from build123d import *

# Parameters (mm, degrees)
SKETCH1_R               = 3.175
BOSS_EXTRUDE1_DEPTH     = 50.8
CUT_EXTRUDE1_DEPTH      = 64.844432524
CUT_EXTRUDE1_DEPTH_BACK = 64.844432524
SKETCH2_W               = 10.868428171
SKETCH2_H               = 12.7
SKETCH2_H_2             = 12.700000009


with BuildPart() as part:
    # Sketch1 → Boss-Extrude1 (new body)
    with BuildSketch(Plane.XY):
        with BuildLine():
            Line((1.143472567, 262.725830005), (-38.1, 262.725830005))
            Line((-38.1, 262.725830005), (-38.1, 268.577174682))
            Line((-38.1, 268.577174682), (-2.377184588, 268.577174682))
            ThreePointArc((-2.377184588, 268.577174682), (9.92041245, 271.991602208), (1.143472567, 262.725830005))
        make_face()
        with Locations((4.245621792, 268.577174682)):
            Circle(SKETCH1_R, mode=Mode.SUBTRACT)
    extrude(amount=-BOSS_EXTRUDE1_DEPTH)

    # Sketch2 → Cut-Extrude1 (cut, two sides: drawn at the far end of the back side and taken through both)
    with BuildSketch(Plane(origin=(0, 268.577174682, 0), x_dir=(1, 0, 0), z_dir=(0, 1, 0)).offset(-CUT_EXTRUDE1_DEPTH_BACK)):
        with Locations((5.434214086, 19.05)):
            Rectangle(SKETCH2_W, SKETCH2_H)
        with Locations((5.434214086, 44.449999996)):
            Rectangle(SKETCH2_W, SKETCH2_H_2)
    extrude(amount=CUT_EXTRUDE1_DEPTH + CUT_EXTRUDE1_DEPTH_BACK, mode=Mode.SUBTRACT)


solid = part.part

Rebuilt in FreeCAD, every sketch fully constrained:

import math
import FreeCAD as App
import Part
import Sketcher

V = App.Vector
Q = App.Units.Quantity

doc = App.newDocument("Part")
params = doc.addObject("Spreadsheet::Sheet", "Params")
for row, (alias, value) in enumerate([
    ("sketch1_diameter", "0.25 in"),
    ("pad1_length", "2 in"),
    ("sketch2_height", "0.5 in"),
], start=1):
    params.set(f"A{row}", alias)
    params.set(f"B{row}", "=" + value)
    params.setAlias(f"B{row}", alias)

body = doc.addObject("PartDesign::Body", "Body")

sketch1 = doc.addObject("Sketcher::SketchObject", "Sketch")
body.addObject(sketch1)
sketch1.AttachmentSupport = (doc.XY_Plane, [""])
sketch1.MapMode = "FlatFace"
sketch1.addGeometry([
    Part.LineSegment(V(-38.1, 262.7, 0), V(1.1, 262.7, 0)),
    Part.ArcOfCircle(Part.Circle(V(4.2, 268.6, 0), V(0, 0, 1), 6.6), math.radians(-118), math.radians(180)),
    Part.LineSegment(V(-2.4, 268.6, 0), V(-38.1, 268.6, 0)),
    Part.LineSegment(V(-38.1, 268.6, 0), V(-38.1, 262.7, 0)),
    Part.Circle(V(4.2, 268.6, 0), V(0, 0, 1), 3.2),
], False)
sketch1.addConstraint([
    Sketcher.Constraint("Coincident", 0, 2, 1, 1),
    Sketcher.Constraint("Coincident", 1, 2, 2, 1),
    Sketcher.Constraint("Coincident", 2, 2, 3, 1),
    Sketcher.Constraint("Coincident", 3, 2, 0, 1),
    Sketcher.Constraint("Horizontal", 0),
    Sketcher.Constraint("Horizontal", 2),
    Sketcher.Constraint("Vertical", 3),
    Sketcher.Constraint("Coincident", 4, 3, 1, 3),
    Sketcher.Constraint("Horizontal", 4, 3, 1, 2),
    Sketcher.Constraint("Diameter", 4, Q("0.25 in")),
    Sketcher.Constraint("DistanceX", 2, 2, -1, 1, Q("1.5 in")),
    Sketcher.Constraint("Radius", 1, Q("6.622806 mm")),
    Sketcher.Constraint("DistanceX", 0, 1, 0, 2, Q("39.243473 mm")),
    Sketcher.Constraint("DistanceX", 2, 2, 2, 1, Q("35.722815 mm")),
    Sketcher.Constraint("DistanceY", -1, 1, 0, 2, Q("262.72583 mm")),
])
sketch1.setExpression("Constraints[9]", "Params.sketch1_diameter")
pad1 = doc.addObject("PartDesign::Pad", "Pad")
body.addObject(pad1)
pad1.Profile = sketch1
pad1.setExpression("Length", "Params.pad1_length")
pad1.Reversed = True

sketch2 = doc.addObject("Sketcher::SketchObject", "Sketch001")
body.addObject(sketch2)
sketch2.AttachmentSupport = (doc.XZ_Plane, [""])
sketch2.MapMode = "FlatFace"
sketch2.AttachmentOffset = App.Placement(V(0, 0, -268.577175), App.Rotation())
sketch2.addGeometry([
    Part.LineSegment(V(0, -25, 0), V(0, -13, 0)),
    Part.LineSegment(V(0, -13, 0), V(11, -13, 0)),
    Part.LineSegment(V(11, -13, 0), V(11, -25, 0)),
    Part.LineSegment(V(11, -25, 0), V(0, -25, 0)),
    Part.LineSegment(V(0, -51, 0), V(0, -38, 0)),
    Part.LineSegment(V(0, -38, 0), V(11, -38, 0)),
    Part.LineSegment(V(11, -38, 0), V(11, -51, 0)),
    Part.LineSegment(V(11, -51, 0), V(0, -51, 0)),
], False)
sketch2.addConstraint([
    Sketcher.Constraint("Coincident", 0, 2, 1, 1),
    Sketcher.Constraint("Coincident", 1, 2, 2, 1),
    Sketcher.Constraint("Coincident", 2, 2, 3, 1),
    Sketcher.Constraint("Coincident", 3, 2, 0, 1),
    Sketcher.Constraint("Coincident", 4, 2, 5, 1),
    Sketcher.Constraint("Coincident", 5, 2, 6, 1),
    Sketcher.Constraint("Coincident", 6, 2, 7, 1),
    Sketcher.Constraint("Coincident", 7, 2, 4, 1),
    Sketcher.Constraint("Vertical", 0),
    Sketcher.Constraint("Horizontal", 1),
    Sketcher.Constraint("Vertical", 2),
    Sketcher.Constraint("Horizontal", 3),
    Sketcher.Constraint("Vertical", 4),
    Sketcher.Constraint("Horizontal", 5),
    Sketcher.Constraint("Vertical", 6),
    Sketcher.Constraint("Horizontal", 7),
    Sketcher.Constraint("PointOnObject", 0, 2, -2),
    Sketcher.Constraint("PointOnObject", 4, 2, -2),
    Sketcher.Constraint("Vertical", 2, 2, 5, 2),
    Sketcher.Constraint("Equal", 2, 4),
    Sketcher.Constraint("DistanceY", 0, 1, 0, 2, Q("0.5 in")),
    Sketcher.Constraint("DistanceY", 2, 2, -1, 1, Q("1 in")),
    Sketcher.Constraint("DistanceY", 6, 2, -1, 1, Q("2 in")),
    Sketcher.Constraint("DistanceX", 1, 1, 1, 2, Q("10.868428 mm")),
])
sketch2.setExpression("Constraints[20]", "Params.sketch2_height")
pocket1 = doc.addObject("PartDesign::Pocket", "Pocket")
body.addObject(pocket1)
pocket1.Profile = sketch2
pocket1.Type = "ThroughAll"
pocket1.Midplane = True

doc.recompute()
